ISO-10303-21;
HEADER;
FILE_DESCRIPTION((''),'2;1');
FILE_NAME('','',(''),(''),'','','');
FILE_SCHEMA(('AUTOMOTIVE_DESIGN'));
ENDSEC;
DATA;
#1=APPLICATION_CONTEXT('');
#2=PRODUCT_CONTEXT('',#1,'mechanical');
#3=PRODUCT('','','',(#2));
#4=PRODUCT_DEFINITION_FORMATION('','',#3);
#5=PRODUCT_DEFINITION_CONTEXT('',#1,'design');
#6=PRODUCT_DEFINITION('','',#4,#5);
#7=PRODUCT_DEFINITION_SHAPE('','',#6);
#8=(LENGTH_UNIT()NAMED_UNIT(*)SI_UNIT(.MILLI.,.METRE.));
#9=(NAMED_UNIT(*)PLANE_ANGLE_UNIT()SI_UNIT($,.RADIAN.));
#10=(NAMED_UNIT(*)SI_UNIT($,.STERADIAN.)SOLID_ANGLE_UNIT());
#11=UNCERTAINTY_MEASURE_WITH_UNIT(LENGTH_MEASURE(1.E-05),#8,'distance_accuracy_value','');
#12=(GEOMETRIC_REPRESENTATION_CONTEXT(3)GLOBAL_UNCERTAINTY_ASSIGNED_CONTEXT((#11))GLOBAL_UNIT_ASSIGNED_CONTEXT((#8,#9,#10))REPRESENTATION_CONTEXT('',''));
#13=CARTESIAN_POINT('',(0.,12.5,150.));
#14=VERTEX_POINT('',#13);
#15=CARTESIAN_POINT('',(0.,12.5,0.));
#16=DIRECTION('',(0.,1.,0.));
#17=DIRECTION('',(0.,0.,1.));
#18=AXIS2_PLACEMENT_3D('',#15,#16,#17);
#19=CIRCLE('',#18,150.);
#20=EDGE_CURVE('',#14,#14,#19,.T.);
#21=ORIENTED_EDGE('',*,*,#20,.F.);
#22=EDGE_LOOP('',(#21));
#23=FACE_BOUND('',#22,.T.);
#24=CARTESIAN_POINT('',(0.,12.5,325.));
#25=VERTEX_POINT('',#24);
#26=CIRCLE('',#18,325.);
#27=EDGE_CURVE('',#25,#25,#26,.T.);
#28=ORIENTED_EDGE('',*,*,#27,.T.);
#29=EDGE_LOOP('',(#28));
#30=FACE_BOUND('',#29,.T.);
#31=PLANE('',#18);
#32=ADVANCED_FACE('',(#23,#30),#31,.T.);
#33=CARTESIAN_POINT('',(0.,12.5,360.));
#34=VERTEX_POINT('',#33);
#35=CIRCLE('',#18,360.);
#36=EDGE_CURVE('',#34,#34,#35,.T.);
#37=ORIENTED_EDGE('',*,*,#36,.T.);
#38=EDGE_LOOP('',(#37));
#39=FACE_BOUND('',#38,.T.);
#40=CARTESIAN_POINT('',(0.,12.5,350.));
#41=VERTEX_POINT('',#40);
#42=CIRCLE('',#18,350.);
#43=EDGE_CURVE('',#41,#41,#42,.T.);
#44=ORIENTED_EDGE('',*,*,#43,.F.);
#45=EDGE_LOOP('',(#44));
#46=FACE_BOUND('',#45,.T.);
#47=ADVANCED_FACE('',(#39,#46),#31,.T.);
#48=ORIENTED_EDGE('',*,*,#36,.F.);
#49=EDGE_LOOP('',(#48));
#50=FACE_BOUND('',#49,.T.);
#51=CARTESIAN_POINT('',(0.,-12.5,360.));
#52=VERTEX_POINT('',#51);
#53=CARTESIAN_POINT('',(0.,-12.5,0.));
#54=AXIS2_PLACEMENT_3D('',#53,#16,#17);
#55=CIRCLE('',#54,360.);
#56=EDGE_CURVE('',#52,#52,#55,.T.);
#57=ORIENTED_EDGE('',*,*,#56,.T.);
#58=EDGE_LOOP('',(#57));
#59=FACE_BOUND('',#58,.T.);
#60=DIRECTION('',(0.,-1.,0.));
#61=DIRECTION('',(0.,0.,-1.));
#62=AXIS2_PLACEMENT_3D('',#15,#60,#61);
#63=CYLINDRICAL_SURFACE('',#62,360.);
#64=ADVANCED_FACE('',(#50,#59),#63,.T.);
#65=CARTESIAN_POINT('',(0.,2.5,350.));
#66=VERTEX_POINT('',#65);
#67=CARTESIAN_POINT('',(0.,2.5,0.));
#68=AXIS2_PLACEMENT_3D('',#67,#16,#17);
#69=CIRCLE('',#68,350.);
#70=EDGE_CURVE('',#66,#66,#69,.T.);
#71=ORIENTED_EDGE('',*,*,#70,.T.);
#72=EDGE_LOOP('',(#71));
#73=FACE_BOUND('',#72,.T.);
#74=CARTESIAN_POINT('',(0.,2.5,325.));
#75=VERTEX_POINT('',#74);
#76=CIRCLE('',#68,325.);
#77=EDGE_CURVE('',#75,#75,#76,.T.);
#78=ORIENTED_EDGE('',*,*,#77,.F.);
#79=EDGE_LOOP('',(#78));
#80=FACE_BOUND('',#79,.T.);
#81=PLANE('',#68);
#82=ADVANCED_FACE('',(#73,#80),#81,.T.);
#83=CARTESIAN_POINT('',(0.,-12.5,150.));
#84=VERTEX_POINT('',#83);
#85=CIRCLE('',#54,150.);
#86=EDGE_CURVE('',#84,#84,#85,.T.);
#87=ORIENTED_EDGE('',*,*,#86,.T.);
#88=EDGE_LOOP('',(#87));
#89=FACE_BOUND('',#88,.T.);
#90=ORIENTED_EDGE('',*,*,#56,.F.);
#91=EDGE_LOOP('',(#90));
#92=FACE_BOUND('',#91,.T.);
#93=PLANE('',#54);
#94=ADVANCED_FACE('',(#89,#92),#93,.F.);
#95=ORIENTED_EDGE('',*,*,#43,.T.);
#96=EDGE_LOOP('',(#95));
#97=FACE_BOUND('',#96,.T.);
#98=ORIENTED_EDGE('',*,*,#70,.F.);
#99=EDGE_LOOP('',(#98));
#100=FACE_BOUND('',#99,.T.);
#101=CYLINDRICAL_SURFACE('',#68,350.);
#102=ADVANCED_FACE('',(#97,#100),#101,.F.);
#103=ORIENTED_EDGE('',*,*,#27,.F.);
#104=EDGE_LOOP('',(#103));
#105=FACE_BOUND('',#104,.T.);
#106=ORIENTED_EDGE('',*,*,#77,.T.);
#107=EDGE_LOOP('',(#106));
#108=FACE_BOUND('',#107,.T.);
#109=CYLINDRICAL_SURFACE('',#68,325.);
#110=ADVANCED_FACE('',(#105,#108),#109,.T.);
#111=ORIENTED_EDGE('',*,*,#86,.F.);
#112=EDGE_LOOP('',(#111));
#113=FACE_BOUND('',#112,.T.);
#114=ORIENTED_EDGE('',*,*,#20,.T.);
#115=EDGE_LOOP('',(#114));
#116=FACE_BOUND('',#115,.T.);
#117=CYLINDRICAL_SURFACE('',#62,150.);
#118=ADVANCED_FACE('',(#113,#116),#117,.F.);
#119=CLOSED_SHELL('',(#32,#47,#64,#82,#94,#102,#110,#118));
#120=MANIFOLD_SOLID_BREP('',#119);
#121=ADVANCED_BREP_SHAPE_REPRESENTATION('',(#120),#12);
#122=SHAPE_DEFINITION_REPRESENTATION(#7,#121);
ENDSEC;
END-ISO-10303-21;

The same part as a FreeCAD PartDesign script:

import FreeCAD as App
import Part
import Sketcher
from FreeCAD import Vector
Q = App.Units.Quantity

doc = App.newDocument("Part")
body = doc.addObject("PartDesign::Body", "Body")

# Sketch on XZ plane
sketch1 = body.newObject("Sketcher::SketchObject", "Sketch")
sketch1.AttachmentSupport = (doc.getObject("XZ_Plane"), [""])
sketch1.MapMode = "FlatFace"
sketch1.addGeometry([
    Part.Circle(Vector(0, 0, 0), Vector(0, 0, 1), 360),
    Part.Circle(Vector(0, 0, 0), Vector(0, 0, 1), 150),
], False)
sketch1.addConstraint([
    Sketcher.Constraint("Coincident", 0, 3, -1, 1),
    Sketcher.Constraint("Coincident", 1, 3, -1, 1),
    Sketcher.Constraint("Diameter", 0, Q("720 mm")),
    Sketcher.Constraint("Diameter", 1, Q("300 mm")),
])
pad1 = body.newObject("PartDesign::Pad", "Pad")
pad1.Profile = sketch1
pad1.Length = 25
pad1.Midplane = True

# Sketch on XZ plane
sketch2 = body.newObject("Sketcher::SketchObject", "Sketch001")
sketch2.AttachmentSupport = (doc.getObject("XZ_Plane"), [""])
sketch2.MapMode = "FlatFace"
sketch2.AttachmentOffset = App.Placement(Vector(0, 0, -12.5), App.Rotation())
sketch2.addGeometry([
    Part.Circle(Vector(0, 0, 0), Vector(0, 0, 1), 350),
    Part.Circle(Vector(0, 0, 0), Vector(0, 0, 1), 325),
], False)
sketch2.addConstraint([
    Sketcher.Constraint("Coincident", 0, 3, -1, 1),
    Sketcher.Constraint("Coincident", 1, 3, -1, 1),
    Sketcher.Constraint("Diameter", 0, Q("700 mm")),
    Sketcher.Constraint("Diameter", 1, Q("650 mm")),
])
pocket1 = body.newObject("PartDesign::Pocket", "Pocket")
pocket1.Profile = sketch2
pocket1.Length = 10
pocket1.Reversed = True

doc.recompute()
